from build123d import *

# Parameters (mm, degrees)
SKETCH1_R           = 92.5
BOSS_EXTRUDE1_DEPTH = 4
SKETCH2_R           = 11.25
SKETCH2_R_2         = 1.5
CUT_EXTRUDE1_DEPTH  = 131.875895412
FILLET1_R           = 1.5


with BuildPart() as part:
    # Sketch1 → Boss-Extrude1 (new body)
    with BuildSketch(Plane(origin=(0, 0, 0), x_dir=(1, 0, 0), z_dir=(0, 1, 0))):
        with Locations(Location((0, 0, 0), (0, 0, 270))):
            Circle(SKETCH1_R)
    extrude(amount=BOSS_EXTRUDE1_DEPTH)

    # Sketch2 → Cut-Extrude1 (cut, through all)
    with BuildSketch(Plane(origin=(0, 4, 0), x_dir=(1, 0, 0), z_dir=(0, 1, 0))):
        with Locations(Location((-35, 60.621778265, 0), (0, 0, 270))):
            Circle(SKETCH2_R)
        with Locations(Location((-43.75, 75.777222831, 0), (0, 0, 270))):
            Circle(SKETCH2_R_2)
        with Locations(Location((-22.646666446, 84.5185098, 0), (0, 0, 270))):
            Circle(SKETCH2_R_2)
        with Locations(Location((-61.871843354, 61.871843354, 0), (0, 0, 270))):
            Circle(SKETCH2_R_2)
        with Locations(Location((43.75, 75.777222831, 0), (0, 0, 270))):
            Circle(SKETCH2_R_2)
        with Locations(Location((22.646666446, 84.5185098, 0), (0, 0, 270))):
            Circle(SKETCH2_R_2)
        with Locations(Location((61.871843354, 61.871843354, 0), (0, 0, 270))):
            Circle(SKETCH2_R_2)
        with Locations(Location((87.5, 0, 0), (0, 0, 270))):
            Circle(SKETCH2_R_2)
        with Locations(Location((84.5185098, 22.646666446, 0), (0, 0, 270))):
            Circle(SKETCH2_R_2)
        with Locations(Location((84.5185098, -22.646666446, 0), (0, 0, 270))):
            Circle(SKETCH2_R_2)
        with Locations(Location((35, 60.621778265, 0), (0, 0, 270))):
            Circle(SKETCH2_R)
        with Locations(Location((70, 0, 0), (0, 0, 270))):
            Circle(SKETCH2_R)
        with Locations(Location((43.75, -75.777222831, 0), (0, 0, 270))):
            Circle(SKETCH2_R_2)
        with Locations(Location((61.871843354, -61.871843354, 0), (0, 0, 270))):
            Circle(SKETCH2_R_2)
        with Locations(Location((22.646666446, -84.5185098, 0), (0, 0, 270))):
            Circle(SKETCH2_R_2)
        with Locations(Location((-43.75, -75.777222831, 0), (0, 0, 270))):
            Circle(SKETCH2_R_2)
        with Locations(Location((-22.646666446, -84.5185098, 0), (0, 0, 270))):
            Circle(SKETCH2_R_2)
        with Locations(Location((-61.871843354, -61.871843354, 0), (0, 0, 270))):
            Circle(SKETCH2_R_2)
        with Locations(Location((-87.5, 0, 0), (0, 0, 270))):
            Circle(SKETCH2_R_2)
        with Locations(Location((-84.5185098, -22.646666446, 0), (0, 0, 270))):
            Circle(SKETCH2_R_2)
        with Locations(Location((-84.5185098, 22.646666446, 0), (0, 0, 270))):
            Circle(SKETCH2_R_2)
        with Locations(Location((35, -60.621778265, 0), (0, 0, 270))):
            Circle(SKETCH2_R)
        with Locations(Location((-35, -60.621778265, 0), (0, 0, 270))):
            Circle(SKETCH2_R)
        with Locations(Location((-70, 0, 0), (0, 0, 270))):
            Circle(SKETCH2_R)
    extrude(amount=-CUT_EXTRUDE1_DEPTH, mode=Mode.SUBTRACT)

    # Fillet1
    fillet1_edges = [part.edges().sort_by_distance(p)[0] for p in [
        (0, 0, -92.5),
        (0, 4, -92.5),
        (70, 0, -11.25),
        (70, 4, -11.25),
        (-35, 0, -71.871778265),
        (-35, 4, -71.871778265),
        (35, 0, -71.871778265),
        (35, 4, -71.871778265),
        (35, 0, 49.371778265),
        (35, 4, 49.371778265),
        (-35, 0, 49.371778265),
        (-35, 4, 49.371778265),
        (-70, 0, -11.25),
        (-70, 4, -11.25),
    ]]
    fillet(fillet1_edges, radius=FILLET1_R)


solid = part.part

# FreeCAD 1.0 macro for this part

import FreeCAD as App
import Part
import Sketcher

V = App.Vector


def edges_at(feature, points):
    """Names of the edges that pass closest to the given points."""
    edges = feature.Shape.Edges
    near = lambda p: min(range(len(edges)), key=lambda i: edges[i].distToShape(Part.Vertex(*p))[0])
    return sorted({f"Edge{near(p) + 1}" for p in points})

doc = App.newDocument("Part")
body = doc.addObject("PartDesign::Body", "Body")

sketch1 = body.newObject("Sketcher::SketchObject", "Sketch")
sketch1.AttachmentSupport = (doc.getObject("XZ_Plane"), [""])
sketch1.MapMode = "FlatFace"
sketch1.addGeometry(Part.Circle(V(0, 0, 0), V(0, 0, 1), 92.5), False)
sketch1.addConstraint(Sketcher.Constraint("Coincident", 0, 3, -1, 1))
sketch1.addConstraint(Sketcher.Constraint("Diameter", 0, 185.0))
pad1 = body.newObject("PartDesign::Pad", "Pad")
pad1.Profile = sketch1
pad1.Length = 4
pad1.Reversed = True

sketch2 = body.newObject("Sketcher::SketchObject", "Sketch001")
sketch2.AttachmentSupport = (doc.getObject("XZ_Plane"), [""])
sketch2.MapMode = "FlatFace"
sketch2.AttachmentOffset = App.Placement(V(0, 0, -4), App.Rotation())
sketch2.addGeometry(Part.Circle(V(-35, -60.621778, 0), V(0, 0, 1), 11.25), False)
sketch2.addGeometry(Part.Circle(V(-43.75, -75.777223, 0), V(0, 0, 1), 1.5), False)
sketch2.addGeometry(Part.Circle(V(-22.646666, -84.51851, 0), V(0, 0, 1), 1.5), False)
sketch2.addGeometry(Part.Circle(V(-61.871843, -61.871843, 0), V(0, 0, 1), 1.5), False)
sketch2.addGeometry(Part.Circle(V(43.75, -75.777223, 0), V(0, 0, 1), 1.5), False)
sketch2.addGeometry(Part.Circle(V(22.646666, -84.51851, 0), V(0, 0, 1), 1.5), False)
sketch2.addGeometry(Part.Circle(V(61.871843, -61.871843, 0), V(0, 0, 1), 1.5), False)
sketch2.addGeometry(Part.Circle(V(87.5, 0, 0), V(0, 0, 1), 1.5), False)
sketch2.addGeometry(Part.Circle(V(84.51851, -22.646666, 0), V(0, 0, 1), 1.5), False)
sketch2.addGeometry(Part.Circle(V(84.51851, 22.646666, 0), V(0, 0, 1), 1.5), False)
sketch2.addGeometry(Part.Circle(V(35, -60.621778, 0), V(0, 0, 1), 11.25), False)
sketch2.addGeometry(Part.Circle(V(70, 0, 0), V(0, 0, 1), 11.25), False)
sketch2.addGeometry(Part.Circle(V(43.75, 75.777223, 0), V(0, 0, 1), 1.5), False)
sketch2.addGeometry(Part.Circle(V(61.871843, 61.871843, 0), V(0, 0, 1), 1.5), False)
sketch2.addGeometry(Part.Circle(V(22.646666, 84.51851, 0), V(0, 0, 1), 1.5), False)
sketch2.addGeometry(Part.Circle(V(-43.75, 75.777223, 0), V(0, 0, 1), 1.5), False)
sketch2.addGeometry(Part.Circle(V(-22.646666, 84.51851, 0), V(0, 0, 1), 1.5), False)
sketch2.addGeometry(Part.Circle(V(-61.871843, 61.871843, 0), V(0, 0, 1), 1.5), False)
sketch2.addGeometry(Part.Circle(V(-87.5, 0, 0), V(0, 0, 1), 1.5), False)
sketch2.addGeometry(Part.Circle(V(-84.51851, 22.646666, 0), V(0, 0, 1), 1.5), False)
sketch2.addGeometry(Part.Circle(V(-84.51851, -22.646666, 0), V(0, 0, 1), 1.5), False)
sketch2.addGeometry(Part.Circle(V(35, 60.621778, 0), V(0, 0, 1), 11.25), False)
sketch2.addGeometry(Part.Circle(V(-35, 60.621778, 0), V(0, 0, 1), 11.25), False)
sketch2.addGeometry(Part.Circle(V(-70, 0, 0), V(0, 0, 1), 11.25), False)
sketch2.addConstraint(Sketcher.Constraint("Equal", 1, 2))
sketch2.addConstraint(Sketcher.Constraint("Equal", 2, 3))
sketch2.addConstraint(Sketcher.Constraint("Equal", 3, 4))
sketch2.addConstraint(Sketcher.Constraint("Equal", 4, 5))
sketch2.addConstraint(Sketcher.Constraint("Equal", 5, 6))
sketch2.addConstraint(Sketcher.Constraint("Equal", 6, 7))
sketch2.addConstraint(Sketcher.Constraint("Equal", 7, 8))
sketch2.addConstraint(Sketcher.Constraint("Equal", 8, 9))
sketch2.addConstraint(Sketcher.Constraint("Equal", 0, 10))
sketch2.addConstraint(Sketcher.Constraint("Equal", 10, 11))
sketch2.addConstraint(Sketcher.Constraint("Equal", 9, 12))
sketch2.addConstraint(Sketcher.Constraint("Equal", 12, 13))
sketch2.addConstraint(Sketcher.Constraint("Equal", 13, 14))
sketch2.addConstraint(Sketcher.Constraint("Equal", 14, 15))
sketch2.addConstraint(Sketcher.Constraint("Equal", 15, 16))
sketch2.addConstraint(Sketcher.Constraint("Equal", 16, 17))
sketch2.addConstraint(Sketcher.Constraint("Equal", 17, 18))
sketch2.addConstraint(Sketcher.Constraint("Equal", 18, 19))
sketch2.addConstraint(Sketcher.Constraint("Equal", 19, 20))
sketch2.addConstraint(Sketcher.Constraint("Equal", 11, 21))
sketch2.addConstraint(Sketcher.Constraint("Equal", 21, 22))
sketch2.addConstraint(Sketcher.Constraint("Equal", 22, 23))
sketch2.addConstraint(Sketcher.Constraint("Symmetric", 1, 3, 12, 3, -1, 1))
sketch2.addConstraint(Sketcher.Constraint("Symmetric", 3, 3, 13, 3, -1, 1))
sketch2.addConstraint(Sketcher.Constraint("Symmetric", 2, 3, 14, 3, -1, 1))
sketch2.addConstraint(Sketcher.Constraint("Symmetric", 4, 3, 15, 3, -1, 1))
sketch2.addConstraint(Sketcher.Constraint("Symmetric", 5, 3, 16, 3, -1, 1))
sketch2.addConstraint(Sketcher.Constraint("Symmetric", 6, 3, 17, 3, -1, 1))
sketch2.addConstraint(Sketcher.Constraint("Symmetric", 7, 3, 18, 3, -1, 1))
sketch2.addConstraint(Sketcher.Constraint("Symmetric", 8, 3, 19, 3, -1, 1))
sketch2.addConstraint(Sketcher.Constraint("Symmetric", 9, 3, 20, 3, -1, 1))
sketch2.addConstraint(Sketcher.Constraint("Symmetric", 0, 3, 21, 3, -1, 1))
sketch2.addConstraint(Sketcher.Constraint("Symmetric", 10, 3, 22, 3, -1, 1))
sketch2.addConstraint(Sketcher.Constraint("Symmetric", 11, 3, 23, 3, -1, 1))
sketch2.addConstraint(Sketcher.Constraint("Symmetric", 1, 3, 4, 3, -2))
sketch2.addConstraint(Sketcher.Constraint("Symmetric", 2, 3, 5, 3, -2))
sketch2.addConstraint(Sketcher.Constraint("Symmetric", 3, 3, 6, 3, -2))
sketch2.addConstraint(Sketcher.Constraint("Symmetric", 0, 3, 10, 3, -2))
sketch2.addConstraint(Sketcher.Constraint("Symmetric", 9, 3, 19, 3, -2))
sketch2.addConstraint(Sketcher.Constraint("PointOnObject", 7, 3, -1))
sketch2.addConstraint(Sketcher.Constraint("PointOnObject", 11, 3, -1))
sketch2.addConstraint(Sketcher.Constraint("Diameter", 1, 3.0))
sketch2.addConstraint(Sketcher.Constraint("Diameter", 0, 22.5))
sketch2.addConstraint(Sketcher.Constraint("DistanceX", 0, 3, -1, 1, 35.0))
sketch2.addConstraint(Sketcher.Constraint("DistanceX", -1, 1, 11, 3, 70.0))
sketch2.addConstraint(Sketcher.Constraint("DistanceX", -1, 1, 7, 3, 87.5))
sketch2.addConstraint(Sketcher.Constraint("DistanceX", 1, 3, 4, 3, 87.5))
sketch2.addConstraint(Sketcher.Constraint("DistanceY", 10, 3, 12, 3, 136.399001))
sketch2.addConstraint(Sketcher.Constraint("DistanceY", 0, 3, -1, 1, 60.621778))
sketch2.addConstraint(Sketcher.Constraint("DistanceY", 2, 3, -1, 1, 84.51851))
sketch2.addConstraint(Sketcher.Constraint("DistanceX", -1, 1, 8, 3, 84.51851))
sketch2.addConstraint(Sketcher.Constraint("DistanceY", 1, 3, 3, 3, 13.905379))
sketch2.addConstraint(Sketcher.Constraint("DistanceX", 3, 3, 5, 3, 84.51851))
sketch2.addConstraint(Sketcher.Constraint("DistanceY", 6, 3, 9, 3, 84.51851))
sketch2.addConstraint(Sketcher.Constraint("DistanceX", 2, 3, -1, 1, 22.646666))
pocket1 = body.newObject("PartDesign::Pocket", "Pocket")
pocket1.Profile = sketch2
pocket1.Type = "ThroughAll"
pocket1.Reversed = True
doc.recompute()

fillet = body.newObject("PartDesign::Fillet", "Fillet")
fillet.Base = (pocket1, edges_at(pocket1, [
    (0, 0, -92.5),
    (0, 4, -92.5),
    (70, 0, -11.25),
    (70, 4, -11.25),
    (-35, 0, -71.872),
    (-35, 4, -71.872),
    (35, 0, -71.872),
    (35, 4, -71.872),
    (35, 0, 49.372),
    (35, 4, 49.372),
    (-35, 0, 49.372),
    (-35, 4, 49.372),
    (-70, 0, -11.25),
    (-70, 4, -11.25),
]))
fillet.Radius = 1.5

doc.recompute()
